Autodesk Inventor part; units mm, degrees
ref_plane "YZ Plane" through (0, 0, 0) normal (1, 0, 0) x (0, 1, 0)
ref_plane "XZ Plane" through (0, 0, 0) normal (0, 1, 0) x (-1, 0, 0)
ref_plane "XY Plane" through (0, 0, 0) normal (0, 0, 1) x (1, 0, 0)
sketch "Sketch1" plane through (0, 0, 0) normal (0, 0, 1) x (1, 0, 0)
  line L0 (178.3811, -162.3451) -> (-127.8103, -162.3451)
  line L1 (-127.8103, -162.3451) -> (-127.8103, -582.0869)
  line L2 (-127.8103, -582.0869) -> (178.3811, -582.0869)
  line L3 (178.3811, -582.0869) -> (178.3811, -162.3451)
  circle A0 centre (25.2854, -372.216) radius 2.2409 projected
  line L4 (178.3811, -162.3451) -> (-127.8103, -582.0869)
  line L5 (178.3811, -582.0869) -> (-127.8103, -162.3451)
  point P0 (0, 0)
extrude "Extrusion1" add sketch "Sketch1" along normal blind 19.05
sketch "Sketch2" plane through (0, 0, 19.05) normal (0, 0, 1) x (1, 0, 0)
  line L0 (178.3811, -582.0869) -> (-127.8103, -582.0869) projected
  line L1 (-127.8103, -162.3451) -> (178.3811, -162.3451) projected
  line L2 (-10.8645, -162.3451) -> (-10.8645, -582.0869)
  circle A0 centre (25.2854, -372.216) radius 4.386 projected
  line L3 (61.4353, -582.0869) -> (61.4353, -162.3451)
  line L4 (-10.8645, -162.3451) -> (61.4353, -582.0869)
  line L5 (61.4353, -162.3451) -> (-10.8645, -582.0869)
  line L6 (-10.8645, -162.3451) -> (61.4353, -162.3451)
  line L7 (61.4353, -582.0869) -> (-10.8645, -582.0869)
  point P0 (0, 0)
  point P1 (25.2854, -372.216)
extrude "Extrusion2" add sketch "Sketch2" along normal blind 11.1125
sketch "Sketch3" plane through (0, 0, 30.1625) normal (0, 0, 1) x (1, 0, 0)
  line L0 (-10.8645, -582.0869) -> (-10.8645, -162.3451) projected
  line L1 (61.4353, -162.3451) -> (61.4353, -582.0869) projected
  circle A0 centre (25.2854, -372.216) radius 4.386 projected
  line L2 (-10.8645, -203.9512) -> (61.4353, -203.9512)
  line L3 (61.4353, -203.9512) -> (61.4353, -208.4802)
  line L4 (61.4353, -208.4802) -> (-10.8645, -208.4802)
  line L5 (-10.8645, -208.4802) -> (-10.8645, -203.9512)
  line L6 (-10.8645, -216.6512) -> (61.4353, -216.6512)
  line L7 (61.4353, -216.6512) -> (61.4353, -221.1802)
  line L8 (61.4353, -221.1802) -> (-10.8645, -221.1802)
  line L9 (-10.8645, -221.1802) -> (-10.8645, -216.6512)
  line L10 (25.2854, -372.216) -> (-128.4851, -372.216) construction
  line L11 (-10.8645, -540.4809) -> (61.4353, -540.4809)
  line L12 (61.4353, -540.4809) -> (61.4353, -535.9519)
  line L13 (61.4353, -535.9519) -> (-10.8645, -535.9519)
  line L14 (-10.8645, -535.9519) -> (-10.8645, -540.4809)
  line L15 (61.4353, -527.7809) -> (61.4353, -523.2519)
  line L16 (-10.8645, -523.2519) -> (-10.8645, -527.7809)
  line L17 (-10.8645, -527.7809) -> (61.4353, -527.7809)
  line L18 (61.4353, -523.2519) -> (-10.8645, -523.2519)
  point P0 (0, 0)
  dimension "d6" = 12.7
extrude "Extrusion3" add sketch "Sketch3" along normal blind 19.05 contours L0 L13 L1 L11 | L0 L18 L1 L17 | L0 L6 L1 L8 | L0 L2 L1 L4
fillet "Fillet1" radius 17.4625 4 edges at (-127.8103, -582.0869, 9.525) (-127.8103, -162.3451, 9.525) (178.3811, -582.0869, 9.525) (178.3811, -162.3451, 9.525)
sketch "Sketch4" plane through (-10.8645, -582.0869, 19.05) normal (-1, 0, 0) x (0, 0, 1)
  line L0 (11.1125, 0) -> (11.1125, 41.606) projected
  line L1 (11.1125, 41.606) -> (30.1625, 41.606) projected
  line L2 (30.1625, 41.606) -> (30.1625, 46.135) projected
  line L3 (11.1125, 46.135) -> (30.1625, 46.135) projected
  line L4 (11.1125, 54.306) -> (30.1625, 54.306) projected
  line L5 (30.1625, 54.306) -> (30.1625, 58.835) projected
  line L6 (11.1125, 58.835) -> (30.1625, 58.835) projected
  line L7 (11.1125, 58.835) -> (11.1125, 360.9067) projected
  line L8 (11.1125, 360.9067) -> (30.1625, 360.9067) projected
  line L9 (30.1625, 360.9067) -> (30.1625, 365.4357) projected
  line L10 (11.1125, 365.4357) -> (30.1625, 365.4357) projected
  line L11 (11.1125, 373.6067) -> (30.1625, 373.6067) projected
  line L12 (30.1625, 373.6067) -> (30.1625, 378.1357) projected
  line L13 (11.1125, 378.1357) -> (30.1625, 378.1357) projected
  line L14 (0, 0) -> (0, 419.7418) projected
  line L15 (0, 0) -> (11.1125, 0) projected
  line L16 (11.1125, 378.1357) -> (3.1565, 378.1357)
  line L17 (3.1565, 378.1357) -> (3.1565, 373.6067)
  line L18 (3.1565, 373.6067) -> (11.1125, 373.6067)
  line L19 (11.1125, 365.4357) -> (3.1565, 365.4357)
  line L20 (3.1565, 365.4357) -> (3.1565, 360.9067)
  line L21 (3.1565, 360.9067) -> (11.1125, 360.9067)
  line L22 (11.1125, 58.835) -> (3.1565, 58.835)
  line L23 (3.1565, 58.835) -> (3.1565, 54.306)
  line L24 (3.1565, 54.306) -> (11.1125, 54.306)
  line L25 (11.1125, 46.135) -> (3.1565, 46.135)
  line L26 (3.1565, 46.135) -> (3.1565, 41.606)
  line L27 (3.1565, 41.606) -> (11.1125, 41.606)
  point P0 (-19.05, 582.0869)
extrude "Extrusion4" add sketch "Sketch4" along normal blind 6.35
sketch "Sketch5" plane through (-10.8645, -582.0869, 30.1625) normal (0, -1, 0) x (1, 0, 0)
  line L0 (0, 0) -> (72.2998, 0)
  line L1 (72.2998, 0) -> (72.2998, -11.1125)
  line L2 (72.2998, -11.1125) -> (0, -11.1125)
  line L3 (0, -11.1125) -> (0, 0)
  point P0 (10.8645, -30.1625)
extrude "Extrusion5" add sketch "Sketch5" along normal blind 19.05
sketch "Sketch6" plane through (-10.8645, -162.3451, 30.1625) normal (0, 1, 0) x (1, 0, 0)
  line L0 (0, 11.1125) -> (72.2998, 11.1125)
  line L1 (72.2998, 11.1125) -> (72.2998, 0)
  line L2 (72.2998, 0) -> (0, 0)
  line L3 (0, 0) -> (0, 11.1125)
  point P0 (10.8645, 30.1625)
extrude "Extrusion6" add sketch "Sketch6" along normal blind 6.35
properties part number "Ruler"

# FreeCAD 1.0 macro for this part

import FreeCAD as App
import Part
import Sketcher
Q = App.Units.Quantity


def edges_at(feature, points):
    """Names of the edges that pass closest to the given points."""
    edges = feature.Shape.Edges
    near = lambda p: min(range(len(edges)), key=lambda i: edges[i].distToShape(Part.Vertex(*p))[0])
    return sorted({f"Edge{near(p) + 1}" for p in points})

doc = App.newDocument("Part")
body = doc.addObject("PartDesign::Body", "Body")

# Sketch on XY plane
sketch1 = body.newObject("Sketcher::SketchObject", "Sketch")
sketch1.AttachmentSupport = (doc.getObject("XY_Plane"), [""])
sketch1.MapMode = "FlatFace"
sketch1.addGeometry([
    Part.LineSegment(App.Vector(178, -162, 0), App.Vector(-128, -162, 0)),
    Part.LineSegment(App.Vector(-128, -162, 0), App.Vector(-128, -582, 0)),
    Part.LineSegment(App.Vector(-128, -582, 0), App.Vector(178, -582, 0)),
    Part.LineSegment(App.Vector(178, -582, 0), App.Vector(178, -162, 0)),
], False)
sketch1.addConstraint([
    Sketcher.Constraint("Coincident", 0, 2, 1, 1),
    Sketcher.Constraint("Coincident", 1, 2, 2, 1),
    Sketcher.Constraint("Coincident", 2, 2, 3, 1),
    Sketcher.Constraint("Coincident", 3, 2, 0, 1),
    Sketcher.Constraint("Horizontal", 0),
    Sketcher.Constraint("Vertical", 1),
    Sketcher.Constraint("Horizontal", 2),
    Sketcher.Constraint("Vertical", 3),
    Sketcher.Constraint("DistanceX", 0, 2, 0, 1, 306.1914),
    Sketcher.Constraint("DistanceY", 1, 2, 1, 1, 419.7418),
    Sketcher.Constraint("DistanceX", 0, 2, -1, 1, Q("5.0319 in")),
    Sketcher.Constraint("DistanceY", 1, 2, -1, 1, Q("22.9168 in")),
])
pad1 = body.newObject("PartDesign::Pad", "Pad")
pad1.Profile = sketch1
pad1.Length = Q("0.75 in")

# Sketch on XY plane
sketch2 = body.newObject("Sketcher::SketchObject", "Sketch001")
sketch2.AttachmentSupport = (doc.getObject("XY_Plane"), [""])
sketch2.MapMode = "FlatFace"
sketch2.AttachmentOffset = App.Placement(App.Vector(0, 0, 0.75 * 25.4), App.Rotation())
sketch2.addGeometry([
    Part.LineSegment(App.Vector(61, -582, 0), App.Vector(61, -162, 0)),
    Part.LineSegment(App.Vector(61, -162, 0), App.Vector(-11, -162, 0)),
    Part.LineSegment(App.Vector(-11, -162, 0), App.Vector(-11, -582, 0)),
    Part.LineSegment(App.Vector(-11, -582, 0), App.Vector(61, -582, 0)),
], False)
sketch2.addConstraint([
    Sketcher.Constraint("Coincident", 0, 2, 1, 1),
    Sketcher.Constraint("Coincident", 1, 2, 2, 1),
    Sketcher.Constraint("Coincident", 2, 2, 3, 1),
    Sketcher.Constraint("Coincident", 3, 2, 0, 1),
    Sketcher.Constraint("Vertical", 0),
    Sketcher.Constraint("Horizontal", 1),
    Sketcher.Constraint("Vertical", 2),
    Sketcher.Constraint("Horizontal", 3),
    Sketcher.Constraint("DistanceX", 1, 2, 1, 1, 72.2998),
    Sketcher.Constraint("DistanceY", 0, 1, 0, 2, 419.7418),
    Sketcher.Constraint("DistanceY", 2, 2, -1, 1, Q("22.9168 in")),
    Sketcher.Constraint("DistanceX", -1, 1, 0, 2, 61.4353),
])
pad2 = body.newObject("PartDesign::Pad", "Pad001")
pad2.Profile = sketch2
pad2.Length = Q("0.4375 in")

# Sketch on XY plane
sketch3 = body.newObject("Sketcher::SketchObject", "Sketch002")
sketch3.AttachmentSupport = (doc.getObject("XY_Plane"), [""])
sketch3.MapMode = "FlatFace"
sketch3.AttachmentOffset = App.Placement(App.Vector(0, 0, 1.1875 * 25.4), App.Rotation())
sketch3.addGeometry([
    Part.LineSegment(App.Vector(-10.9, -536, 0), App.Vector(-10.9, -540.5, 0)),  # 0
    Part.LineSegment(App.Vector(-10.9, -540.5, 0), App.Vector(61.4, -540.5, 0)),  # 1
    Part.LineSegment(App.Vector(61.4, -540.5, 0), App.Vector(61.4, -536, 0)),  # 2
    Part.LineSegment(App.Vector(61.4, -536, 0), App.Vector(-10.9, -536, 0)),  # 3
    Part.LineSegment(App.Vector(-10.9, -523.3, 0), App.Vector(-10.9, -527.8, 0)),  # 4
    Part.LineSegment(App.Vector(-10.9, -527.8, 0), App.Vector(61.4, -527.8, 0)),  # 5
    Part.LineSegment(App.Vector(61.4, -527.8, 0), App.Vector(61.4, -523.3, 0)),  # 6
    Part.LineSegment(App.Vector(61.4, -523.3, 0), App.Vector(-10.9, -523.3, 0)),  # 7
    Part.LineSegment(App.Vector(-10.9, -216.7, 0), App.Vector(-10.9, -221.2, 0)),  # 8
    Part.LineSegment(App.Vector(-10.9, -221.2, 0), App.Vector(61.4, -221.2, 0)),  # 9
    Part.LineSegment(App.Vector(61.4, -221.2, 0), App.Vector(61.4, -216.7, 0)),  # 10
    Part.LineSegment(App.Vector(61.4, -216.7, 0), App.Vector(-10.9, -216.7, 0)),  # 11
    Part.LineSegment(App.Vector(-10.9, -204, 0), App.Vector(-10.9, -208.5, 0)),  # 12
    Part.LineSegment(App.Vector(-10.9, -208.5, 0), App.Vector(61.4, -208.5, 0)),  # 13
    Part.LineSegment(App.Vector(61.4, -208.5, 0), App.Vector(61.4, -204, 0)),  # 14
    Part.LineSegment(App.Vector(61.4, -204, 0), App.Vector(-10.9, -204, 0)),  # 15
], False)
sketch3.addConstraint([
    Sketcher.Constraint("Coincident", 0, 2, 1, 1),
    Sketcher.Constraint("Coincident", 1, 2, 2, 1),
    Sketcher.Constraint("Coincident", 2, 2, 3, 1),
    Sketcher.Constraint("Coincident", 3, 2, 0, 1),
    Sketcher.Constraint("Coincident", 4, 2, 5, 1),
    Sketcher.Constraint("Coincident", 5, 2, 6, 1),
    Sketcher.Constraint("Coincident", 6, 2, 7, 1),
    Sketcher.Constraint("Coincident", 7, 2, 4, 1),
    Sketcher.Constraint("Coincident", 8, 2, 9, 1),
    Sketcher.Constraint("Coincident", 9, 2, 10, 1),
    Sketcher.Constraint("Coincident", 10, 2, 11, 1),
    Sketcher.Constraint("Coincident", 11, 2, 8, 1),
    Sketcher.Constraint("Coincident", 12, 2, 13, 1),
    Sketcher.Constraint("Coincident", 13, 2, 14, 1),
    Sketcher.Constraint("Coincident", 14, 2, 15, 1),
    Sketcher.Constraint("Coincident", 15, 2, 12, 1),
    Sketcher.Constraint("Vertical", 0),
    Sketcher.Constraint("Horizontal", 1),
    Sketcher.Constraint("Vertical", 2),
    Sketcher.Constraint("Horizontal", 3),
    Sketcher.Constraint("Vertical", 4),
    Sketcher.Constraint("Horizontal", 5),
    Sketcher.Constraint("Vertical", 6),
    Sketcher.Constraint("Horizontal", 7),
    Sketcher.Constraint("Vertical", 8),
    Sketcher.Constraint("Horizontal", 9),
    Sketcher.Constraint("Vertical", 10),
    Sketcher.Constraint("Horizontal", 11),
    Sketcher.Constraint("Vertical", 12),
    Sketcher.Constraint("Horizontal", 13),
    Sketcher.Constraint("Vertical", 14),
    Sketcher.Constraint("Horizontal", 15),
    Sketcher.Constraint("Vertical", 3, 2, 4, 2),
    Sketcher.Constraint("Vertical", 2, 2, 5, 2),
    Sketcher.Constraint("Vertical", 7, 2, 8, 2),
    Sketcher.Constraint("Vertical", 6, 2, 9, 2),
    Sketcher.Constraint("Vertical", 11, 2, 12, 2),
    Sketcher.Constraint("Vertical", 10, 2, 13, 2),
    Sketcher.Constraint("Equal", 2, 4),
    Sketcher.Constraint("Equal", 6, 8),
    Sketcher.Constraint("Equal", 10, 12),
    Sketcher.Constraint("DistanceY", 0, 2, 4, 2, Q("0.5 in")),
    Sketcher.Constraint("DistanceY", 8, 2, 12, 2, Q("0.5 in")),
    Sketcher.Constraint("DistanceY", 0, 2, 0, 1, Q("0.1783 in")),
    Sketcher.Constraint("DistanceX", 1, 1, 1, 2, 72.2998),
    Sketcher.Constraint("DistanceY", 4, 2, 8, 2, Q("12.0709 in")),
    Sketcher.Constraint("DistanceX", 0, 2, -1, 1, 10.8645),
    Sketcher.Constraint("DistanceY", 0, 2, -1, 1, 540.481),
])
pad3 = body.newObject("PartDesign::Pad", "Pad002")
pad3.Profile = sketch3
pad3.Length = Q("0.75 in")
doc.recompute()

fillet = body.newObject("PartDesign::Fillet", "Fillet")
fillet.Base = (pad3, edges_at(pad3, [
    (-127.81, -582.087, 9.525),
    (-127.81, -162.345, 9.525),
    (178.381, -582.087, 9.525),
    (178.381, -162.345, 9.525),
]))
fillet.Radius = Q("0.6875 in")

# Sketch on YZ plane
sketch4 = body.newObject("Sketcher::SketchObject", "Sketch003")
sketch4.AttachmentSupport = (doc.getObject("YZ_Plane"), [""])
sketch4.MapMode = "FlatFace"
sketch4.AttachmentOffset = App.Placement(App.Vector(0, 0, -10.8645), App.Rotation())
sketch4.addGeometry([
    Part.LineSegment(App.Vector(-540.5, 22.2, 0), App.Vector(-540.5, 49.2, 0)),  # 0
    Part.LineSegment(App.Vector(-540.5, 49.2, 0), App.Vector(-536, 49.2, 0)),  # 1
    Part.LineSegment(App.Vector(-536, 49.2, 0), App.Vector(-536, 22.2, 0)),  # 2
    Part.LineSegment(App.Vector(-536, 22.2, 0), App.Vector(-540.5, 22.2, 0)),  # 3
    Part.LineSegment(App.Vector(-527.8, 22.2, 0), App.Vector(-527.8, 49.2, 0)),  # 4
    Part.LineSegment(App.Vector(-527.8, 49.2, 0), App.Vector(-523.3, 49.2, 0)),  # 5
    Part.LineSegment(App.Vector(-523.3, 49.2, 0), App.Vector(-523.3, 22.2, 0)),  # 6
    Part.LineSegment(App.Vector(-523.3, 22.2, 0), App.Vector(-527.8, 22.2, 0)),  # 7
    Part.LineSegment(App.Vector(-221.2, 22.2, 0), App.Vector(-221.2, 49.2, 0)),  # 8
    Part.LineSegment(App.Vector(-221.2, 49.2, 0), App.Vector(-216.7, 49.2, 0)),  # 9
    Part.LineSegment(App.Vector(-216.7, 49.2, 0), App.Vector(-216.7, 22.2, 0)),  # 10
    Part.LineSegment(App.Vector(-216.7, 22.2, 0), App.Vector(-221.2, 22.2, 0)),  # 11
    Part.LineSegment(App.Vector(-208.5, 22.2, 0), App.Vector(-208.5, 49.2, 0)),  # 12
    Part.LineSegment(App.Vector(-208.5, 49.2, 0), App.Vector(-204, 49.2, 0)),  # 13
    Part.LineSegment(App.Vector(-204, 49.2, 0), App.Vector(-204, 22.2, 0)),  # 14
    Part.LineSegment(App.Vector(-204, 22.2, 0), App.Vector(-208.5, 22.2, 0)),  # 15
], False)
sketch4.addConstraint([
    Sketcher.Constraint("Coincident", 0, 2, 1, 1),
    Sketcher.Constraint("Coincident", 1, 2, 2, 1),
    Sketcher.Constraint("Coincident", 2, 2, 3, 1),
    Sketcher.Constraint("Coincident", 3, 2, 0, 1),
    Sketcher.Constraint("Coincident", 4, 2, 5, 1),
    Sketcher.Constraint("Coincident", 5, 2, 6, 1),
    Sketcher.Constraint("Coincident", 6, 2, 7, 1),
    Sketcher.Constraint("Coincident", 7, 2, 4, 1),
    Sketcher.Constraint("Coincident", 8, 2, 9, 1),
    Sketcher.Constraint("Coincident", 9, 2, 10, 1),
    Sketcher.Constraint("Coincident", 10, 2, 11, 1),
    Sketcher.Constraint("Coincident", 11, 2, 8, 1),
    Sketcher.Constraint("Coincident", 12, 2, 13, 1),
    Sketcher.Constraint("Coincident", 13, 2, 14, 1),
    Sketcher.Constraint("Coincident", 14, 2, 15, 1),
    Sketcher.Constraint("Coincident", 15, 2, 12, 1),
    Sketcher.Constraint("Vertical", 0),
    Sketcher.Constraint("Horizontal", 1),
    Sketcher.Constraint("Vertical", 2),
    Sketcher.Constraint("Horizontal", 3),
    Sketcher.Constraint("Vertical", 4),
    Sketcher.Constraint("Horizontal", 5),
    Sketcher.Constraint("Vertical", 6),
    Sketcher.Constraint("Horizontal", 7),
    Sketcher.Constraint("Vertical", 8),
    Sketcher.Constraint("Horizontal", 9),
    Sketcher.Constraint("Vertical", 10),
    Sketcher.Constraint("Horizontal", 11),
    Sketcher.Constraint("Vertical", 12),
    Sketcher.Constraint("Horizontal", 13),
    Sketcher.Constraint("Vertical", 14),
    Sketcher.Constraint("Horizontal", 15),
    Sketcher.Constraint("Horizontal", 1, 2, 4, 2),
    Sketcher.Constraint("Horizontal", 3, 2, 6, 2),
    Sketcher.Constraint("Horizontal", 5, 2, 8, 2),
    Sketcher.Constraint("Horizontal", 7, 2, 10, 2),
    Sketcher.Constraint("Horizontal", 9, 2, 12, 2),
    Sketcher.Constraint("Horizontal", 11, 2, 14, 2),
    Sketcher.Constraint("Equal", 3, 5),
    Sketcher.Constraint("Equal", 7, 9),
    Sketcher.Constraint("Equal", 11, 13),
    Sketcher.Constraint("DistanceX", 0, 2, 4, 2, Q("0.5 in")),
    Sketcher.Constraint("DistanceX", 8, 2, 12, 2, Q("0.5 in")),
    Sketcher.Constraint("DistanceX", 1, 1, 1, 2, Q("0.1783 in")),
    Sketcher.Constraint("DistanceY", -1, 1, 0, 2, Q("1.9375 in")),
    Sketcher.Constraint("DistanceY", 0, 1, 0, 2, 27.006),
    Sketcher.Constraint("DistanceX", 4, 2, 8, 2, Q("12.0709 in")),
    Sketcher.Constraint("DistanceX", 0, 2, -1, 1, 540.481),
])
pad4 = body.newObject("PartDesign::Pad", "Pad003")
pad4.Profile = sketch4
pad4.Length = Q("0.25 in")
pad4.Reversed = True

# Sketch on XZ plane
sketch5 = body.newObject("Sketcher::SketchObject", "Sketch004")
sketch5.AttachmentSupport = (doc.getObject("XZ_Plane"), [""])
sketch5.MapMode = "FlatFace"
sketch5.AttachmentOffset = App.Placement(App.Vector(0, 0, 22.9168071 * 25.4), App.Rotation())
sketch5.addGeometry([
    Part.LineSegment(App.Vector(61, 30, 0), App.Vector(-11, 30, 0)),
    Part.LineSegment(App.Vector(-11, 30, 0), App.Vector(-11, 19, 0)),
    Part.LineSegment(App.Vector(-11, 19, 0), App.Vector(61, 19, 0)),
    Part.LineSegment(App.Vector(61, 19, 0), App.Vector(61, 30, 0)),
], False)
sketch5.addConstraint([
    Sketcher.Constraint("Coincident", 0, 2, 1, 1),
    Sketcher.Constraint("Coincident", 1, 2, 2, 1),
    Sketcher.Constraint("Coincident", 2, 2, 3, 1),
    Sketcher.Constraint("Coincident", 3, 2, 0, 1),
    Sketcher.Constraint("Horizontal", 0),
    Sketcher.Constraint("Vertical", 1),
    Sketcher.Constraint("Horizontal", 2),
    Sketcher.Constraint("Vertical", 3),
    Sketcher.Constraint("DistanceY", 1, 2, 1, 1, Q("0.4375 in")),
    Sketcher.Constraint("DistanceY", -1, 1, 1, 2, Q("0.75 in")),
    Sketcher.Constraint("DistanceX", 0, 2, 0, 1, 72.2998),
    Sketcher.Constraint("DistanceX", 0, 2, -1, 1, 10.8645),
])
pad5 = body.newObject("PartDesign::Pad", "Pad004")
pad5.Profile = sketch5
pad5.Length = Q("0.75 in")

# Sketch on XZ plane
sketch6 = body.newObject("Sketcher::SketchObject", "Sketch005")
sketch6.AttachmentSupport = (doc.getObject("XZ_Plane"), [""])
sketch6.MapMode = "FlatFace"
sketch6.AttachmentOffset = App.Placement(App.Vector(0, 0, 162.3451), App.Rotation())
sketch6.addGeometry([
    Part.LineSegment(App.Vector(61, 19, 0), App.Vector(-11, 19, 0)),
    Part.LineSegment(App.Vector(-11, 19, 0), App.Vector(-11, 30, 0)),
    Part.LineSegment(App.Vector(-11, 30, 0), App.Vector(61, 30, 0)),
    Part.LineSegment(App.Vector(61, 30, 0), App.Vector(61, 19, 0)),
], False)
sketch6.addConstraint([
    Sketcher.Constraint("Coincident", 0, 2, 1, 1),
    Sketcher.Constraint("Coincident", 1, 2, 2, 1),
    Sketcher.Constraint("Coincident", 2, 2, 3, 1),
    Sketcher.Constraint("Coincident", 3, 2, 0, 1),
    Sketcher.Constraint("Horizontal", 0),
    Sketcher.Constraint("Vertical", 1),
    Sketcher.Constraint("Horizontal", 2),
    Sketcher.Constraint("Vertical", 3),
    Sketcher.Constraint("DistanceY", 1, 1, 1, 2, Q("0.4375 in")),
    Sketcher.Constraint("DistanceY", -1, 1, 0, 2, Q("0.75 in")),
    Sketcher.Constraint("DistanceX", 0, 2, 0, 1, 72.2998),
    Sketcher.Constraint("DistanceX", 0, 2, -1, 1, 10.8645),
])
pad6 = body.newObject("PartDesign::Pad", "Pad005")
pad6.Profile = sketch6
pad6.Length = Q("0.25 in")
pad6.Reversed = True

doc.recompute()
